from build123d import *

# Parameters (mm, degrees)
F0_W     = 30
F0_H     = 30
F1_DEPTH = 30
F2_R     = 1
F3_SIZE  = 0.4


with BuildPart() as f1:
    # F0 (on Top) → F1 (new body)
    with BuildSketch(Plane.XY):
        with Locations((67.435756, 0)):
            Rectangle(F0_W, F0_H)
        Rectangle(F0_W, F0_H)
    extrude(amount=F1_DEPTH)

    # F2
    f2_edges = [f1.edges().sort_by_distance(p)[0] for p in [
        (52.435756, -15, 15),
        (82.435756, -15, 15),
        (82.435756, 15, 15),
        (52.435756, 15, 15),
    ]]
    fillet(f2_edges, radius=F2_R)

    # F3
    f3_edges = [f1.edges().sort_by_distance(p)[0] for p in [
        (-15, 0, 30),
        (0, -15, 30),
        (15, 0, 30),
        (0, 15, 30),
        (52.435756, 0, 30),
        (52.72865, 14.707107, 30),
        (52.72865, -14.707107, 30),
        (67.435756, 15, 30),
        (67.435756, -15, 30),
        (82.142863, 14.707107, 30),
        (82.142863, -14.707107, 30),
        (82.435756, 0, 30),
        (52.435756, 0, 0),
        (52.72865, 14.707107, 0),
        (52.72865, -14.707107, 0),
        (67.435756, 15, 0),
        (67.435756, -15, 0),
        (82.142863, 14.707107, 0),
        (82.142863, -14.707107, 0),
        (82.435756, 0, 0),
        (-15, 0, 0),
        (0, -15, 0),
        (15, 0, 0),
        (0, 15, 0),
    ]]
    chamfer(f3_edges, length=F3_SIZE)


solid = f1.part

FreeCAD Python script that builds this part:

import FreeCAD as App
import Part
import Sketcher


def edges_at(feature, points):
    """Names of the edges that pass closest to the given points."""
    edges = feature.Shape.Edges
    near = lambda p: min(range(len(edges)), key=lambda i: edges[i].distToShape(Part.Vertex(*p))[0])
    return sorted({f"Edge{near(p) + 1}" for p in points})

doc = App.newDocument("Part")
body = doc.addObject("PartDesign::Body", "Body")
body.AllowCompound = True

# Sketch on XY plane
sketch1 = body.newObject("Sketcher::SketchObject", "Sketch")
sketch1.AttachmentSupport = (doc.getObject("XY_Plane"), [""])
sketch1.MapMode = "FlatFace"
sketch1.addGeometry([
    Part.LineSegment(App.Vector(52.435756, 15, 0), App.Vector(52.435756, -15, 0)),  # 0
    Part.LineSegment(App.Vector(52.435756, -15, 0), App.Vector(82.435756, -15, 0)),  # 1
    Part.LineSegment(App.Vector(82.435756, -15, 0), App.Vector(82.435756, 15, 0)),  # 2
    Part.LineSegment(App.Vector(82.435756, 15, 0), App.Vector(52.435756, 15, 0)),  # 3
    Part.LineSegment(App.Vector(-15, 15, 0), App.Vector(-15, -15, 0)),  # 4
    Part.LineSegment(App.Vector(-15, -15, 0), App.Vector(15, -15, 0)),  # 5
    Part.LineSegment(App.Vector(15, -15, 0), App.Vector(15, 15, 0)),  # 6
    Part.LineSegment(App.Vector(15, 15, 0), App.Vector(-15, 15, 0)),  # 7
], False)
sketch1.addConstraint([
    Sketcher.Constraint("Coincident", 0, 2, 1, 1),
    Sketcher.Constraint("Coincident", 1, 2, 2, 1),
    Sketcher.Constraint("Coincident", 2, 2, 3, 1),
    Sketcher.Constraint("Coincident", 3, 2, 0, 1),
    Sketcher.Constraint("Coincident", 4, 2, 5, 1),
    Sketcher.Constraint("Coincident", 5, 2, 6, 1),
    Sketcher.Constraint("Coincident", 6, 2, 7, 1),
    Sketcher.Constraint("Coincident", 7, 2, 4, 1),
    Sketcher.Constraint("Vertical", 0),
    Sketcher.Constraint("Horizontal", 1),
    Sketcher.Constraint("Vertical", 2),
    Sketcher.Constraint("Horizontal", 3),
    Sketcher.Constraint("Vertical", 4),
    Sketcher.Constraint("Horizontal", 5),
    Sketcher.Constraint("Vertical", 6),
    Sketcher.Constraint("Horizontal", 7),
    Sketcher.Constraint("Symmetric", 4, 2, 6, 2, -1, 1),
    Sketcher.Constraint("Horizontal", 1, 2, 4, 2),
    Sketcher.Constraint("Horizontal", 3, 2, 6, 2),
    Sketcher.Constraint("Equal", 3, 5),
    Sketcher.Constraint("Equal", 7, 0),
    Sketcher.Constraint("DistanceX", 1, 1, 1, 2, 30.0),
    Sketcher.Constraint("DistanceX", -1, 1, 0, 2, 52.435756),
])
pad1 = body.newObject("PartDesign::Pad", "Pad")
pad1.Profile = sketch1
pad1.Length = 30
doc.recompute()

fillet = body.newObject("PartDesign::Fillet", "Fillet")
fillet.Base = (pad1, edges_at(pad1, [
    (52.436, -15, 15),
    (82.436, -15, 15),
    (82.436, 15, 15),
    (52.436, 15, 15),
]))
fillet.Radius = 1
doc.recompute()

chamfer = body.newObject("PartDesign::Chamfer", "Chamfer")
chamfer.Base = (fillet, edges_at(fillet, [
    (-15, 0, 30),
    (0, -15, 30),
    (15, 0, 30),
    (0, 15, 30),
    (52.436, 0, 30),
    (52.729, 14.707, 30),
    (52.729, -14.707, 30),
    (67.436, 15, 30),
    (67.436, -15, 30),
    (82.143, 14.707, 30),
    (82.143, -14.707, 30),
    (82.436, 0, 30),
    (52.436, 0, 0),
    (52.729, 14.707, 0),
    (52.729, -14.707, 0),
    (67.436, 15, 0),
    (67.436, -15, 0),
    (82.143, 14.707, 0),
    (82.143, -14.707, 0),
    (82.436, 0, 0),
    (-15, 0, 0),
    (0, -15, 0),
    (15, 0, 0),
    (0, 15, 0),
]))
chamfer.Size = 0.4

doc.recompute()
